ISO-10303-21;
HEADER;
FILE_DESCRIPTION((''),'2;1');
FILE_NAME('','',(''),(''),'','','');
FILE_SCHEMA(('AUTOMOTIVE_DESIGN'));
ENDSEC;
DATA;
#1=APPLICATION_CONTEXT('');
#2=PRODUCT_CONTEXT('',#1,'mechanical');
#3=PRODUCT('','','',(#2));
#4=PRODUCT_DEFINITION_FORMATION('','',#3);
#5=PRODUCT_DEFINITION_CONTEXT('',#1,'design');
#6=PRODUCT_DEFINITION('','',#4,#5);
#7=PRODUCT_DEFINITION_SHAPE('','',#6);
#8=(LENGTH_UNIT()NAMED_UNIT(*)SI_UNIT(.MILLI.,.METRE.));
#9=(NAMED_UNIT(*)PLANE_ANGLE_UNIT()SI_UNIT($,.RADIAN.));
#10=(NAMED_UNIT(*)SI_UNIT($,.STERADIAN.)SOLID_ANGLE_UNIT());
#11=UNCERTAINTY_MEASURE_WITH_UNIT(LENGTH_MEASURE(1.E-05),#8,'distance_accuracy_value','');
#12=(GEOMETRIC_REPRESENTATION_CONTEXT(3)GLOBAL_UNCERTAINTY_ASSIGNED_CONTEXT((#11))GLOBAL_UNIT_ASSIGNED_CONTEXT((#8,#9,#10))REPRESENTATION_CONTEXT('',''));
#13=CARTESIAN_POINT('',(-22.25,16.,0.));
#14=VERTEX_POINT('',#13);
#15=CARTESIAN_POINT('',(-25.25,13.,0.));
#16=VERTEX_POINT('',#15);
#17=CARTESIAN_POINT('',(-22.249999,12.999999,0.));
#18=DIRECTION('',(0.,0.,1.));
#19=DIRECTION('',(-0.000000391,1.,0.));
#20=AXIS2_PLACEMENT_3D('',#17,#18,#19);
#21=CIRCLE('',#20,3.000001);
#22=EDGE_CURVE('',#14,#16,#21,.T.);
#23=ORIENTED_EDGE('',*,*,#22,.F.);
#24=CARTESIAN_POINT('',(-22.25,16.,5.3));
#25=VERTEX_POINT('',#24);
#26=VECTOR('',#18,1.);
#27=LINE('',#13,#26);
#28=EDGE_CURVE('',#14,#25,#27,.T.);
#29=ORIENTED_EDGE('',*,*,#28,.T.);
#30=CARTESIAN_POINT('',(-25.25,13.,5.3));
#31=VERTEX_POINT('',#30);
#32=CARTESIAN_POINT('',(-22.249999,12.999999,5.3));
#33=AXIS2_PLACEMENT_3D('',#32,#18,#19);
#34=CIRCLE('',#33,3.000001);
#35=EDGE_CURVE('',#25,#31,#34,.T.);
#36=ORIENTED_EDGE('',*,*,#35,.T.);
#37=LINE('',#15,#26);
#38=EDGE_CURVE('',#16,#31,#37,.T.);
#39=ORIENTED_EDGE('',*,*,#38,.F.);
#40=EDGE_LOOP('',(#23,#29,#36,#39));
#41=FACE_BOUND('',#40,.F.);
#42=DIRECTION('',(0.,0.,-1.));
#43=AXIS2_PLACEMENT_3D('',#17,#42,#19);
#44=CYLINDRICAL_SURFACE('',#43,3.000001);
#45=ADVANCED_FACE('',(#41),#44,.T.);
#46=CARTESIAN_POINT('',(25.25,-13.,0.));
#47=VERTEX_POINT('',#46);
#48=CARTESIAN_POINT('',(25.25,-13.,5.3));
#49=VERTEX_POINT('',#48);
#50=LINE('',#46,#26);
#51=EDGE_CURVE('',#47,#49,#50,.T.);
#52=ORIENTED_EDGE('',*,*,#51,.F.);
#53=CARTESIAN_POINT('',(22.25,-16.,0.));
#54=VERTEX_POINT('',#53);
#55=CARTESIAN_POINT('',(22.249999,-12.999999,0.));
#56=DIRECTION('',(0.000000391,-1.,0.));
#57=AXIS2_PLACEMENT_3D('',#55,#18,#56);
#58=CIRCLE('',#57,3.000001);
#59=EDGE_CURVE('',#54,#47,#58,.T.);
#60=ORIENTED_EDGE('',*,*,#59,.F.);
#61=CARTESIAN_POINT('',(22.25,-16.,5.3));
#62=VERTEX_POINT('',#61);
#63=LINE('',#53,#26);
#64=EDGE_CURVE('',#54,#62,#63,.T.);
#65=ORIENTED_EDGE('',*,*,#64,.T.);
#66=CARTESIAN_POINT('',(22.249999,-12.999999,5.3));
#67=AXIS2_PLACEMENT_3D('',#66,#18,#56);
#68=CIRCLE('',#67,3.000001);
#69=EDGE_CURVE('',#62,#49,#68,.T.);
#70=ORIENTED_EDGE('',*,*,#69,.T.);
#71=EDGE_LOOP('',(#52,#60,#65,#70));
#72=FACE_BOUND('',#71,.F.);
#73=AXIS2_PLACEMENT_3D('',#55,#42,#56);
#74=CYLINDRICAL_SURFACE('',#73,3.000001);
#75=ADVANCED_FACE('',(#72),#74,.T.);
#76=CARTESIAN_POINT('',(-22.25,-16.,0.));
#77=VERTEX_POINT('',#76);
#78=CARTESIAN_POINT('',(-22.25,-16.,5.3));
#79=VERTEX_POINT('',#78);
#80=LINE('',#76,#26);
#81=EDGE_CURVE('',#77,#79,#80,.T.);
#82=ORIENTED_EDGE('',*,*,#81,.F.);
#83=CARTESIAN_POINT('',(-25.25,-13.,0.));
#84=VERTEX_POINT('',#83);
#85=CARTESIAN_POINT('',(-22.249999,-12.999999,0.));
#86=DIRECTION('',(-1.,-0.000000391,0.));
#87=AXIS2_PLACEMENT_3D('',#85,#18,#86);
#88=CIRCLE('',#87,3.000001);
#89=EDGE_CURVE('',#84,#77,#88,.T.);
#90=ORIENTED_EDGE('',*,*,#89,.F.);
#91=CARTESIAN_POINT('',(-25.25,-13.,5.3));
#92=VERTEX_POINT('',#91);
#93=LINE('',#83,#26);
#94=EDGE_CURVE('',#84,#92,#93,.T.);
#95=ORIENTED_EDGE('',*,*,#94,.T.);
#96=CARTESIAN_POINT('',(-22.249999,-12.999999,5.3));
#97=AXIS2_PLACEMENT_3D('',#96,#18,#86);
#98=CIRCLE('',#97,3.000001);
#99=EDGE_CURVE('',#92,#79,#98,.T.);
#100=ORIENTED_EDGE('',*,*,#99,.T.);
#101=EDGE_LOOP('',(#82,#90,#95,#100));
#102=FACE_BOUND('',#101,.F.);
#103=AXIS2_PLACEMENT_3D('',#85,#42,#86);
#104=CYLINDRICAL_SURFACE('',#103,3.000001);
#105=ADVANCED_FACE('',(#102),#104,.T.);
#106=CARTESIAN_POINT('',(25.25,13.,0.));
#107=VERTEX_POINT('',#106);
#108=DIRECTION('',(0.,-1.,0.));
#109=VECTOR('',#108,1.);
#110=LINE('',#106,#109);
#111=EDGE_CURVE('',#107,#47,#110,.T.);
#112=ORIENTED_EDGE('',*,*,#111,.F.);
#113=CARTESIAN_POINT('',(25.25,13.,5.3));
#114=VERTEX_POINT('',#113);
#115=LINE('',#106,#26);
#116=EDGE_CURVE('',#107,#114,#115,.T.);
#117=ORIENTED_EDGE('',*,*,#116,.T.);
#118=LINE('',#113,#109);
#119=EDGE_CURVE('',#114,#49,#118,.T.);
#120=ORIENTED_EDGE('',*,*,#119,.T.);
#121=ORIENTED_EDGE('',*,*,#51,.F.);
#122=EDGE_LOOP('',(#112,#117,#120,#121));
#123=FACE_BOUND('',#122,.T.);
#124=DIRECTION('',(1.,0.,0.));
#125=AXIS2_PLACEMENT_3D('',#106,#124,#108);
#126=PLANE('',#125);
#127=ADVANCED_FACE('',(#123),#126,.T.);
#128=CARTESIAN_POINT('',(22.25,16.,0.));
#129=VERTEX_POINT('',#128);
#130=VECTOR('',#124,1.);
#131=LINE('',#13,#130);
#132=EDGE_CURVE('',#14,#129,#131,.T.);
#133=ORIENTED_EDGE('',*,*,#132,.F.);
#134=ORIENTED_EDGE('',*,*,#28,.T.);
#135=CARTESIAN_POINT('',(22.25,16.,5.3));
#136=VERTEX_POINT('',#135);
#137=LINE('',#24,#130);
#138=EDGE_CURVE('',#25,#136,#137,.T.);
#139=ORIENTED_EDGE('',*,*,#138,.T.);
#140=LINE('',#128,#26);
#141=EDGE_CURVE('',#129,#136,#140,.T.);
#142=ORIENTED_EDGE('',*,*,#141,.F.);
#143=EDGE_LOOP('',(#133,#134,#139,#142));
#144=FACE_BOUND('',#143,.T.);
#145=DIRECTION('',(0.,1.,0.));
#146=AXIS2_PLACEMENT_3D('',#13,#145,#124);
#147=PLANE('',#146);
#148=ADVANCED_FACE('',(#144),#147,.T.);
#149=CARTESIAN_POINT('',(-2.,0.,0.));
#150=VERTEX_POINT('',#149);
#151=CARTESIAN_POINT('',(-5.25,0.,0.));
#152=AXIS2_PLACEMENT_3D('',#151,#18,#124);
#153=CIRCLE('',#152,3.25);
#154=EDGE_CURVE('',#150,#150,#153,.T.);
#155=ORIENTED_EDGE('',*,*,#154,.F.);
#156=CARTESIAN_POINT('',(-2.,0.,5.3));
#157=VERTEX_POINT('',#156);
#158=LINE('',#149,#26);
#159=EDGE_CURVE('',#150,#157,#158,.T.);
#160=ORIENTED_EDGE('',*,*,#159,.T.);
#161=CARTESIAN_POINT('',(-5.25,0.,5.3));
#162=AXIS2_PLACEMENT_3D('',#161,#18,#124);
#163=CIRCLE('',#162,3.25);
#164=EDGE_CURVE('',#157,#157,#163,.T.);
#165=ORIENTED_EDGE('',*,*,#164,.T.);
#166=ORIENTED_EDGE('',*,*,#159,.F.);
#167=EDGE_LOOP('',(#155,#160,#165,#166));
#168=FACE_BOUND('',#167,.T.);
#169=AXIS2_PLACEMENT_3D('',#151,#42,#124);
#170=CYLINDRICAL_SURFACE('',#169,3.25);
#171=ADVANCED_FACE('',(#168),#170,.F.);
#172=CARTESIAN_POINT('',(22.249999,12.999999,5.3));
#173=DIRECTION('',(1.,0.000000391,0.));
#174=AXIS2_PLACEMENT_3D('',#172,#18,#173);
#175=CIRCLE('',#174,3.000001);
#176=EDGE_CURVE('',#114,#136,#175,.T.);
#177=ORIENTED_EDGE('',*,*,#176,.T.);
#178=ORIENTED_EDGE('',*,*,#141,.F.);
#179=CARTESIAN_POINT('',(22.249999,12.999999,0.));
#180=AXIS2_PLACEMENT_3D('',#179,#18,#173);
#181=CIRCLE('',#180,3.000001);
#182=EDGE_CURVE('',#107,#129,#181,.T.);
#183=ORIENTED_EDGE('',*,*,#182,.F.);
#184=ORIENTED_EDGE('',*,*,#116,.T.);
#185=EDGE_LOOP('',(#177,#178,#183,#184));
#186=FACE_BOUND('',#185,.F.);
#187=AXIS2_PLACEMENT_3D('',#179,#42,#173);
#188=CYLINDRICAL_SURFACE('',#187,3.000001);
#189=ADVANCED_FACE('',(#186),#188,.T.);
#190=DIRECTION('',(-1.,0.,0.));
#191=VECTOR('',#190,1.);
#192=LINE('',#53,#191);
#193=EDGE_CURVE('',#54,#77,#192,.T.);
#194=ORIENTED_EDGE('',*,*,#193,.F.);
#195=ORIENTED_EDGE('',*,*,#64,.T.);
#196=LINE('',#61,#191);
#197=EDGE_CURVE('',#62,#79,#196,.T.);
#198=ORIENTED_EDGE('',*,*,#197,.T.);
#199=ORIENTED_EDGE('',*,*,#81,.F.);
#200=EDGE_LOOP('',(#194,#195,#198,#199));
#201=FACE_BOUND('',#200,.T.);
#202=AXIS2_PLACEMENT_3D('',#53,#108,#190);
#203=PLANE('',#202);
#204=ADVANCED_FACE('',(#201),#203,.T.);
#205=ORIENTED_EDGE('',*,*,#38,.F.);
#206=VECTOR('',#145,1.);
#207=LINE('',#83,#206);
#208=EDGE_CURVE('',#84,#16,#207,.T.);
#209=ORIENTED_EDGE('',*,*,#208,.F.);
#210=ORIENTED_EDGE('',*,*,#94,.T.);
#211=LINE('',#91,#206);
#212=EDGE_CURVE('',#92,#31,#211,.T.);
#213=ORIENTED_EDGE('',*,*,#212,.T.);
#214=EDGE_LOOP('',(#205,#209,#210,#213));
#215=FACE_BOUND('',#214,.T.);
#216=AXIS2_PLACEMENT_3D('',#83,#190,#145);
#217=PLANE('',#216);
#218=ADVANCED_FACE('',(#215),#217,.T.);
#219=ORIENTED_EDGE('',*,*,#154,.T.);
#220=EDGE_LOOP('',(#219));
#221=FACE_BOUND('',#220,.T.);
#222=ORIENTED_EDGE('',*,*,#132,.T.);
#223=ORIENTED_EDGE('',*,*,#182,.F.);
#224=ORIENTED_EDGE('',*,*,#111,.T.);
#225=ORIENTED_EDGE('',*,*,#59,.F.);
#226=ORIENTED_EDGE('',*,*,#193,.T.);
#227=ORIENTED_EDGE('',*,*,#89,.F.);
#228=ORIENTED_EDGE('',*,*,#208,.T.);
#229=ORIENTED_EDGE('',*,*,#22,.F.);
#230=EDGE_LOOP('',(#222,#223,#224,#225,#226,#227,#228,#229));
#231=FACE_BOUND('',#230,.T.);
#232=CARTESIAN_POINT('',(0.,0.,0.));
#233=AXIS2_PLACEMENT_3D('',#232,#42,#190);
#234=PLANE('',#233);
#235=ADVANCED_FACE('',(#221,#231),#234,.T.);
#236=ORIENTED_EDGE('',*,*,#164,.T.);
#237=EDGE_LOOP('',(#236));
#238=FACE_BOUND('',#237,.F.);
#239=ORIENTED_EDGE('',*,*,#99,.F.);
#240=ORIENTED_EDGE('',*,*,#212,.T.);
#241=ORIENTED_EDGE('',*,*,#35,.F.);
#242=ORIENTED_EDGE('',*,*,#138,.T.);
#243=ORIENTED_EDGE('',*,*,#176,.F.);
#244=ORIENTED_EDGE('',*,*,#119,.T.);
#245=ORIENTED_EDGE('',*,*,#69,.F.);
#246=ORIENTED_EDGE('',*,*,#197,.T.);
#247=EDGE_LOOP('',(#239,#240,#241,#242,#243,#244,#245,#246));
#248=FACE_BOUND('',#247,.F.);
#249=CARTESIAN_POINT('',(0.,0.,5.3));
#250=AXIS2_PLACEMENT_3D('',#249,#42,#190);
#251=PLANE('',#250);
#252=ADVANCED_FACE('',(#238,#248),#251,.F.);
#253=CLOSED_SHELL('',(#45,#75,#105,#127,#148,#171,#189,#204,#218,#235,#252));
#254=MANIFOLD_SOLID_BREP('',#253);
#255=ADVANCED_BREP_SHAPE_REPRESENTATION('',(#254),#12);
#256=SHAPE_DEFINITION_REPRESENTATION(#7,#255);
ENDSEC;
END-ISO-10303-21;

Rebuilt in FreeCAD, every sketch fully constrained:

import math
import FreeCAD as App
import Part
import Sketcher

V = App.Vector
Q = App.Units.Quantity

doc = App.newDocument("Part")
body = doc.addObject("PartDesign::Body", "Body")

# Sketch on XY plane
sketch1 = doc.addObject("Sketcher::SketchObject", "Sketch")
body.addObject(sketch1)
sketch1.AttachmentSupport = (doc.XY_Plane, [""])
sketch1.MapMode = "FlatFace"
sketch1.addGeometry([
    Part.LineSegment(V(22.2, 16, 0), V(-22.2, 16, 0)),  # 0
    Part.ArcOfCircle(Part.Circle(V(-22.2, 13, 0), V(0, 0, 1), 3), math.radians(90), math.radians(180)),  # 1
    Part.LineSegment(V(-25.2, 13, 0), V(-25.2, -13, 0)),  # 2
    Part.ArcOfCircle(Part.Circle(V(-22.2, -13, 0), V(0, 0, 1), 3), math.radians(-180), math.radians(-90)),  # 3
    Part.LineSegment(V(-22.2, -16, 0), V(22.2, -16, 0)),  # 4
    Part.ArcOfCircle(Part.Circle(V(22.2, -13, 0), V(0, 0, 1), 3), math.radians(-90), math.radians(0)),  # 5
    Part.LineSegment(V(25.2, -13, 0), V(25.2, 13, 0)),  # 6
    Part.ArcOfCircle(Part.Circle(V(22.2, 13, 0), V(0, 0, 1), 3), math.radians(0), math.radians(90)),  # 7
    Part.Circle(V(-5.2, 0, 0), V(0, 0, 1), 3.2),  # 8
], False)
sketch1.addConstraint([
    Sketcher.Constraint("Tangent", 0, 2, 1, 1),
    Sketcher.Constraint("Tangent", 1, 2, 2, 1),
    Sketcher.Constraint("Tangent", 2, 2, 3, 1),
    Sketcher.Constraint("Tangent", 3, 2, 4, 1),
    Sketcher.Constraint("Tangent", 4, 2, 5, 1),
    Sketcher.Constraint("Tangent", 5, 2, 6, 1),
    Sketcher.Constraint("Tangent", 6, 2, 7, 1),
    Sketcher.Constraint("Tangent", 7, 2, 0, 1),
    Sketcher.Constraint("Horizontal", 0),
    Sketcher.Constraint("Vertical", 2),
    Sketcher.Constraint("Horizontal", 4),
    Sketcher.Constraint("Vertical", 6),
    Sketcher.Constraint("Equal", 1, 3),
    Sketcher.Constraint("Equal", 3, 5),
    Sketcher.Constraint("Equal", 5, 7),
    Sketcher.Constraint("Symmetric", 1, 3, 5, 3, -1, 1),
    Sketcher.Constraint("PointOnObject", 8, 3, -1),
    Sketcher.Constraint("Radius", 1, Q("3.000001 mm")),
    Sketcher.Constraint("Diameter", 8, Q("6.5 mm")),
    Sketcher.Constraint("DistanceY", 2, 2, 2, 1, Q("26 mm")),
    Sketcher.Constraint("DistanceX", 0, 2, 0, 1, Q("44.5 mm")),
    Sketcher.Constraint("DistanceX", 1, 3, 8, 3, Q("16.999999 mm")),
])
pad1 = doc.addObject("PartDesign::Pad", "Pad")
body.addObject(pad1)
pad1.Profile = sketch1
pad1.Length = 5.3

doc.recompute()
